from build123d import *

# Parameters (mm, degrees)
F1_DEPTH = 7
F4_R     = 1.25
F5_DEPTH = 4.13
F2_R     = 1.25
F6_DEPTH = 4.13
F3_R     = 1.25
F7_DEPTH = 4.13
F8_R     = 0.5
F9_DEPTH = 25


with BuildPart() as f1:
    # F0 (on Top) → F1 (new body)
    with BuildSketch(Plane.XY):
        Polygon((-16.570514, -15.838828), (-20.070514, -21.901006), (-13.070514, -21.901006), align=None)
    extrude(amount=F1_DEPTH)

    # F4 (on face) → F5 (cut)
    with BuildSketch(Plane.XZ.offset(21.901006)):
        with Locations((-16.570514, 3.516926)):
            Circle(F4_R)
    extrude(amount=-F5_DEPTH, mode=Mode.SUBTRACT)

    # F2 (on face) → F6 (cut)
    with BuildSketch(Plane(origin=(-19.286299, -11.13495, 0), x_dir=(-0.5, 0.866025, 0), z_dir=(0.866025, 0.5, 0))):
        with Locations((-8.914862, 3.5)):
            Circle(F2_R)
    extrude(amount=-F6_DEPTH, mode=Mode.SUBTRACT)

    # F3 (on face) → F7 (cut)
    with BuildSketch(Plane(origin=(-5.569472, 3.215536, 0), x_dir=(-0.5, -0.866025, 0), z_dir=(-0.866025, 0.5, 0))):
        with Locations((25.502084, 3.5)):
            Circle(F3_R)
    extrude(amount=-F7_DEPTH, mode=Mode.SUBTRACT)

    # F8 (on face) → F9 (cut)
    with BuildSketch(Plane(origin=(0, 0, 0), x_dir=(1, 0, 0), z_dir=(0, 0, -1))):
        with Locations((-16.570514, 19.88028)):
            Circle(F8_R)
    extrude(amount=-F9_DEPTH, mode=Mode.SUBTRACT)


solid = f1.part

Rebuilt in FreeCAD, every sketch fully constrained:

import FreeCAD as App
import Part
import Sketcher

V = App.Vector
Q = App.Units.Quantity


def add_polygon(sketch, points):
    """Adds a closed chain of lines whose ends are joined by coincident constraints."""
    first, n = sketch.GeometryCount, len(points)
    for a, b in zip(points, points[1:] + points[:1]):
        sketch.addGeometry(Part.LineSegment(App.Vector(*a, 0), App.Vector(*b, 0)), False)
    for i in range(n):
        sketch.addConstraint(Sketcher.Constraint("Coincident", first + i, 2, first + (i + 1) % n, 1))

doc = App.newDocument("Part")
body = doc.addObject("PartDesign::Body", "Body")

# Sketch on XY plane
sketch1 = body.newObject("Sketcher::SketchObject", "Sketch")
sketch1.AttachmentSupport = (doc.getObject("XY_Plane"), [""])
sketch1.MapMode = "FlatFace"
add_polygon(sketch1, [(-16.570514, -15.838828), (-20.070514, -21.901006), (-13.070514, -21.901006)])  # lines 0-2
sketch1.addConstraint([
    Sketcher.Constraint("Horizontal", 1),
    Sketcher.Constraint("Equal", 0, 2),
    Sketcher.Constraint("DistanceX", 1, 1, 1, 2, Q("7 mm")),
    Sketcher.Constraint("Angle", 0, Q("-119.999999 deg")),
    Sketcher.Constraint("DistanceX", 0, 2, -1, 1, Q("20.070514 mm")),
    Sketcher.Constraint("DistanceY", 0, 2, -1, 1, Q("21.901006 mm")),
])
pad1 = body.newObject("PartDesign::Pad", "Pad")
pad1.Profile = sketch1
pad1.Length = 7

# Sketch on XZ plane
sketch2 = body.newObject("Sketcher::SketchObject", "Sketch001")
sketch2.AttachmentSupport = (doc.getObject("XZ_Plane"), [""])
sketch2.MapMode = "FlatFace"
sketch2.AttachmentOffset = App.Placement(V(0, 0, 21.901006), App.Rotation())
sketch2.addGeometry(Part.Circle(V(-16.570514, 3.516926, 0), V(0, 0, 1), 1.25), False)
sketch2.addConstraint([
    Sketcher.Constraint("Diameter", 0, Q("2.5 mm")),
    Sketcher.Constraint("DistanceX", 0, 3, -1, 1, Q("16.570514 mm")),
    Sketcher.Constraint("DistanceY", -1, 1, 0, 3, Q("3.516926 mm")),
])
pocket1 = body.newObject("PartDesign::Pocket", "Pocket")
pocket1.Profile = sketch2
pocket1.Length = 4.13

# Sketch on an angled plane
sketch3 = body.newObject("Sketcher::SketchObject", "Sketch002")
sketch3.Placement = App.Placement(V(-19.286299, -11.13495, 0), App.Rotation(V(-0.500000175, 0.866025303, 0), V(0, 0, 1), V(0.866025303, 0.500000175, 0), "ZXY"))
sketch3.addGeometry(Part.Circle(V(-8.914862, 3.5, 0), V(0, 0, 1), 1.25), False)
sketch3.addConstraint([
    Sketcher.Constraint("Diameter", 0, Q("2.5 mm")),
    Sketcher.Constraint("DistanceY", -1, 1, 0, 3, Q("3.5 mm")),
    Sketcher.Constraint("DistanceX", 0, 3, -1, 1, Q("8.914862 mm")),
])
pocket2 = body.newObject("PartDesign::Pocket", "Pocket001")
pocket2.Profile = sketch3
pocket2.Length = 4.13

# Sketch on an angled plane
sketch4 = body.newObject("Sketcher::SketchObject", "Sketch003")
sketch4.Placement = App.Placement(V(-5.569472, 3.215536, 0), App.Rotation(V(-0.500000175, -0.866025303, 0), V(0, 0, 1), V(-0.866025303, 0.500000175, 0), "ZXY"))
sketch4.addGeometry(Part.Circle(V(25.502084, 3.5, 0), V(0, 0, 1), 1.25), False)
sketch4.addConstraint([
    Sketcher.Constraint("Diameter", 0, Q("2.5 mm")),
    Sketcher.Constraint("DistanceY", -1, 1, 0, 3, Q("3.5 mm")),
    Sketcher.Constraint("DistanceX", -1, 1, 0, 3, Q("25.502084 mm")),
])
pocket3 = body.newObject("PartDesign::Pocket", "Pocket002")
pocket3.Profile = sketch4
pocket3.Length = 4.13

# Sketch on XY plane
sketch5 = body.newObject("Sketcher::SketchObject", "Sketch004")
sketch5.AttachmentSupport = (doc.getObject("XY_Plane"), [""])
sketch5.MapMode = "FlatFace"
sketch5.addGeometry(Part.Circle(V(-16.570514, -19.88028, 0), V(0, 0, 1), 0.5), False)
sketch5.addConstraint([
    Sketcher.Constraint("Diameter", 0, Q("1 mm")),
    Sketcher.Constraint("DistanceY", 0, 3, -1, 1, Q("19.88028 mm")),
    Sketcher.Constraint("DistanceX", 0, 3, -1, 1, Q("16.570514 mm")),
])
pocket4 = body.newObject("PartDesign::Pocket", "Pocket003")
pocket4.Profile = sketch5
pocket4.Length = 25
pocket4.Reversed = True

doc.recompute()
